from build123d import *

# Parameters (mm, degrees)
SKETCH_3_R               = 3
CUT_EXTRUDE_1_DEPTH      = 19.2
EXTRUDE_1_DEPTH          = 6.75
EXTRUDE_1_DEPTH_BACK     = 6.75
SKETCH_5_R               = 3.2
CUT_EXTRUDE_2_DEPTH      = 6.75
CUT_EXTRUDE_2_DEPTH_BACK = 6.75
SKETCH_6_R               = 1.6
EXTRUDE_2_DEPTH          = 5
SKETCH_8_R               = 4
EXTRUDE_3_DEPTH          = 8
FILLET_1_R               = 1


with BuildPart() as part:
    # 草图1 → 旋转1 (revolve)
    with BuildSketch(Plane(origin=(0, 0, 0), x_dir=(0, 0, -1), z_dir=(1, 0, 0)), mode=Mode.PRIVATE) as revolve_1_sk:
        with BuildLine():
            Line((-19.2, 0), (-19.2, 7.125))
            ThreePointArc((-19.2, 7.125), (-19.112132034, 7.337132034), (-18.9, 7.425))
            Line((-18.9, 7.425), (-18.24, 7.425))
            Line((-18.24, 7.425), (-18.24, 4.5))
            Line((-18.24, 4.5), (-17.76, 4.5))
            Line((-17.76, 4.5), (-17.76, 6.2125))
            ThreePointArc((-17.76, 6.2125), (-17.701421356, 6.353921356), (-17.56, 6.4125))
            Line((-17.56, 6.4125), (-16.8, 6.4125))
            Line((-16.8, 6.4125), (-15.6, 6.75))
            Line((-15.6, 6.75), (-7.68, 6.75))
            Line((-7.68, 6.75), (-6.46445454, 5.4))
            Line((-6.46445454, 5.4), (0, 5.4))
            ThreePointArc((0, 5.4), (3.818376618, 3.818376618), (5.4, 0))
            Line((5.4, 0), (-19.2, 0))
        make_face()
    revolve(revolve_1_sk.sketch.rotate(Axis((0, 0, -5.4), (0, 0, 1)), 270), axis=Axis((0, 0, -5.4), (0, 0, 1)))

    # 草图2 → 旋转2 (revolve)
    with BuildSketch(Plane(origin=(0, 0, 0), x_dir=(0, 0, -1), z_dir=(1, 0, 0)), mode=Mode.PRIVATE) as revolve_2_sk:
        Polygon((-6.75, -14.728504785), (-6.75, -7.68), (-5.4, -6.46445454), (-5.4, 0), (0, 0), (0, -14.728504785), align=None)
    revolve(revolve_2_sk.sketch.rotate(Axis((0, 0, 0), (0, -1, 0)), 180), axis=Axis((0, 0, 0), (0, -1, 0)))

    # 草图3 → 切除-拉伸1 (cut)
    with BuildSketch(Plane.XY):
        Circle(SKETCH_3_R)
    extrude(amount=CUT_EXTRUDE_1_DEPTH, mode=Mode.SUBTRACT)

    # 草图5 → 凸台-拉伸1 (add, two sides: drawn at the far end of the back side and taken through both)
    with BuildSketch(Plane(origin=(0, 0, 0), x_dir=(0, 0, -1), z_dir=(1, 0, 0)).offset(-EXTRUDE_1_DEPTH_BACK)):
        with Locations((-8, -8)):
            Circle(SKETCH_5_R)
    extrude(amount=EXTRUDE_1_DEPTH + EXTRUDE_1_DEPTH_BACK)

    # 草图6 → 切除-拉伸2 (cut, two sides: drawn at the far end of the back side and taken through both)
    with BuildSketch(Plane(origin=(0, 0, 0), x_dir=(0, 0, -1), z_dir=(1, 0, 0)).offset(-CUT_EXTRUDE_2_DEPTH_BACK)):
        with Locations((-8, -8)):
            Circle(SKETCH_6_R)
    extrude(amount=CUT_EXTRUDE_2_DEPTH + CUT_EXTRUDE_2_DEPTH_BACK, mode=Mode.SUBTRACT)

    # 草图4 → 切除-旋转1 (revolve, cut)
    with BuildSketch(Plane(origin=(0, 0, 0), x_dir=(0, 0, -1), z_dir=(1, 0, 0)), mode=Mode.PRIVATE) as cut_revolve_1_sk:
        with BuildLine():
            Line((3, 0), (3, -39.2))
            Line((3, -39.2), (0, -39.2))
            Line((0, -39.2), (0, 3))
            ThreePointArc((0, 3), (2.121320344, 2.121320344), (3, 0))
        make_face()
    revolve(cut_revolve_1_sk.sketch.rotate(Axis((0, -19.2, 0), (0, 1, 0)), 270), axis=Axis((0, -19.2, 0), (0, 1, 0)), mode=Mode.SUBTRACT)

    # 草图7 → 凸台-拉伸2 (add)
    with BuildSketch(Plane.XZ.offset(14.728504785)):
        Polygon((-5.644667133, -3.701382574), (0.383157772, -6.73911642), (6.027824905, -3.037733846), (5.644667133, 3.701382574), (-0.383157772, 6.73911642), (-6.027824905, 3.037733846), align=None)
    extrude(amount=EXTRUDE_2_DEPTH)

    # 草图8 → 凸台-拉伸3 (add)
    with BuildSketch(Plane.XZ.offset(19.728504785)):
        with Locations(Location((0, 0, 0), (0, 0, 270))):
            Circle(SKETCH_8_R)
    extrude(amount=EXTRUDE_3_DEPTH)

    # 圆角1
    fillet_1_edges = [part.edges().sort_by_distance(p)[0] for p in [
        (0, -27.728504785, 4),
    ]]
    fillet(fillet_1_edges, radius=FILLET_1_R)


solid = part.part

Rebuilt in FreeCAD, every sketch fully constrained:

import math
import FreeCAD as App
import Part
import Sketcher

V = App.Vector
Q = App.Units.Quantity


def edges_at(feature, points):
    """Names of the edges that pass closest to the given points."""
    edges = feature.Shape.Edges
    near = lambda p: min(range(len(edges)), key=lambda i: edges[i].distToShape(Part.Vertex(*p))[0])
    return sorted({f"Edge{near(p) + 1}" for p in points})

doc = App.newDocument("Part")
body = doc.addObject("PartDesign::Body", "Body")

# Sketch on YZ plane
sketch1 = doc.addObject("Sketcher::SketchObject", "Sketch")
body.addObject(sketch1)
sketch1.AttachmentSupport = (doc.YZ_Plane, [""])
sketch1.MapMode = "FlatFace"
sketch1.addGeometry([
    Part.LineSegment(V(7.12, 19.2, 0), V(0, 19.2, 0)),  # 0
    Part.LineSegment(V(0, 19.2, 0), V(0, -5.4, 0)),  # 1
    Part.ArcOfCircle(Part.Circle(V(0, 0, 0), V(0, 0, 1), 5.4), math.radians(-90), math.radians(0)),  # 2
    Part.LineSegment(V(5.4, 0, 0), V(5.4, 6.46, 0)),  # 3
    Part.LineSegment(V(5.4, 6.46, 0), V(6.75, 7.68, 0)),  # 4
    Part.LineSegment(V(6.75, 7.68, 0), V(6.75, 15.6, 0)),  # 5
    Part.LineSegment(V(6.75, 15.6, 0), V(6.41, 16.8, 0)),  # 6
    Part.LineSegment(V(6.41, 16.8, 0), V(6.41, 17.56, 0)),  # 7
    Part.ArcOfCircle(Part.Circle(V(6.21, 17.56, 0), V(0, 0, 1), 0.2), math.radians(0), math.radians(90)),  # 8
    Part.LineSegment(V(6.21, 17.76, 0), V(4.5, 17.76, 0)),  # 9
    Part.LineSegment(V(4.5, 17.76, 0), V(4.5, 18.24, 0)),  # 10
    Part.LineSegment(V(4.5, 18.24, 0), V(7.42, 18.24, 0)),  # 11
    Part.LineSegment(V(7.42, 18.24, 0), V(7.42, 18.9, 0)),  # 12
    Part.ArcOfCircle(Part.Circle(V(7.12, 18.9, 0), V(0, 0, 1), 0.3), math.radians(0), math.radians(90)),  # 13
], False)
sketch1.addConstraint([
    Sketcher.Constraint("Coincident", 0, 2, 1, 1),
    Sketcher.Constraint("Coincident", 1, 2, 2, 1),
    Sketcher.Constraint("Tangent", 2, 2, 3, 1),
    Sketcher.Constraint("Coincident", 3, 2, 4, 1),
    Sketcher.Constraint("Coincident", 4, 2, 5, 1),
    Sketcher.Constraint("Coincident", 5, 2, 6, 1),
    Sketcher.Constraint("Coincident", 6, 2, 7, 1),
    Sketcher.Constraint("Tangent", 7, 2, 8, 1),
    Sketcher.Constraint("Tangent", 8, 2, 9, 1),
    Sketcher.Constraint("Coincident", 9, 2, 10, 1),
    Sketcher.Constraint("Coincident", 10, 2, 11, 1),
    Sketcher.Constraint("Coincident", 11, 2, 12, 1),
    Sketcher.Constraint("Tangent", 12, 2, 13, 1),
    Sketcher.Constraint("Tangent", 13, 2, 0, 1),
    Sketcher.Constraint("Horizontal", 0),
    Sketcher.Constraint("Vertical", 1),
    Sketcher.Constraint("Vertical", 3),
    Sketcher.Constraint("Vertical", 5),
    Sketcher.Constraint("Vertical", 7),
    Sketcher.Constraint("Horizontal", 9),
    Sketcher.Constraint("Vertical", 10),
    Sketcher.Constraint("Horizontal", 11),
    Sketcher.Constraint("Vertical", 12),
    Sketcher.Constraint("Coincident", 2, 3, -1, 1),
    Sketcher.Constraint("PointOnObject", 0, 2, -2),
    Sketcher.Constraint("Radius", 2, 5.4),
    Sketcher.Constraint("Radius", 8, 0.2),
    Sketcher.Constraint("Radius", 13, 0.3),
    Sketcher.Constraint("Angle", 4, Q("42 deg")),
    Sketcher.Constraint("DistanceY", 1, 2, 1, 1, 24.6),
    Sketcher.Constraint("DistanceY", 5, 1, 5, 2, 7.92),
    Sketcher.Constraint("DistanceY", 7, 1, 7, 2, 0.76),
    Sketcher.Constraint("DistanceY", 10, 1, 10, 2, 0.48),
    Sketcher.Constraint("DistanceY", 12, 1, 12, 2, 0.66),
    Sketcher.Constraint("DistanceY", -1, 1, 5, 2, 15.6),
    Sketcher.Constraint("DistanceX", -1, 1, 9, 2, 4.5),
    Sketcher.Constraint("DistanceX", 0, 2, 0, 1, 7.125),
    Sketcher.Constraint("DistanceX", -1, 1, 4, 2, 6.75),
    Sketcher.Constraint("DistanceX", 9, 2, 9, 1, 1.7125),
])
revolution = doc.addObject("PartDesign::Revolution", "Revolution")
body.addObject(revolution)
revolution.Profile = sketch1
revolution.ReferenceAxis = (sketch1, ["V_Axis"])
revolution.Angle = 360

# Sketch on YZ plane
sketch2 = doc.addObject("Sketcher::SketchObject", "Sketch001")
body.addObject(sketch2)
sketch2.AttachmentSupport = (doc.YZ_Plane, [""])
sketch2.MapMode = "FlatFace"
sketch2.addGeometry([
    Part.LineSegment(V(-7.7, 6.8, 0), V(-14.7, 6.8, 0)),  # 0
    Part.LineSegment(V(-14.7, 6.8, 0), V(-14.7, 0, 0)),  # 1
    Part.LineSegment(V(-14.7, 0, 0), V(0, 0, 0)),  # 2
    Part.LineSegment(V(0, 0, 0), V(0, 5.4, 0)),  # 3
    Part.LineSegment(V(0, 5.4, 0), V(-6.5, 5.4, 0)),  # 4
    Part.LineSegment(V(-6.5, 5.4, 0), V(-7.7, 6.8, 0)),  # 5
], False)
sketch2.addConstraint([
    Sketcher.Constraint("Coincident", 0, 2, 1, 1),
    Sketcher.Constraint("Coincident", 1, 2, 2, 1),
    Sketcher.Constraint("Coincident", 2, 2, 3, 1),
    Sketcher.Constraint("Coincident", 3, 2, 4, 1),
    Sketcher.Constraint("Coincident", 4, 2, 5, 1),
    Sketcher.Constraint("Coincident", 5, 2, 0, 1),
    Sketcher.Constraint("Horizontal", 0),
    Sketcher.Constraint("Vertical", 1),
    Sketcher.Constraint("Horizontal", 2),
    Sketcher.Constraint("Vertical", 3),
    Sketcher.Constraint("Horizontal", 4),
    Sketcher.Constraint("Coincident", 2, 2, -1, 1),
    Sketcher.Constraint("Angle", 5, Q("132 deg")),
    Sketcher.Constraint("DistanceY", 3, 1, 3, 2, 5.4),
    Sketcher.Constraint("DistanceY", 1, 2, 1, 1, 6.75),
    Sketcher.Constraint("DistanceX", 5, 2, -1, 1, 7.68),
    Sketcher.Constraint("DistanceX", 0, 2, 0, 1, 7.048505),
])
revolution2 = doc.addObject("PartDesign::Revolution", "Revolution001")
body.addObject(revolution2)
revolution2.Profile = sketch2
revolution2.ReferenceAxis = (sketch2, ["H_Axis"])
revolution2.Angle = 360

# Sketch on XY plane
sketch3 = doc.addObject("Sketcher::SketchObject", "Sketch002")
body.addObject(sketch3)
sketch3.AttachmentSupport = (doc.XY_Plane, [""])
sketch3.MapMode = "FlatFace"
sketch3.addGeometry(Part.Circle(V(0, 0, 0), V(0, 0, 1), 3), False)
sketch3.addConstraint([
    Sketcher.Constraint("Coincident", 0, 3, -1, 1),
    Sketcher.Constraint("Diameter", 0, 6.0),
])
pocket1 = doc.addObject("PartDesign::Pocket", "Pocket")
body.addObject(pocket1)
pocket1.Profile = sketch3
pocket1.Length = 19.2
pocket1.Reversed = True

# Sketch on YZ plane
sketch4 = doc.addObject("Sketcher::SketchObject", "Sketch003")
body.addObject(sketch4)
sketch4.AttachmentSupport = (doc.YZ_Plane, [""])
sketch4.MapMode = "FlatFace"
sketch4.addGeometry(Part.Circle(V(-8, 8, 0), V(0, 0, 1), 3.2), False)
sketch4.addConstraint([
    Sketcher.Constraint("Diameter", 0, 6.4),
    Sketcher.Constraint("DistanceX", 0, 3, -1, 1, 8.0),
    Sketcher.Constraint("DistanceY", -1, 1, 0, 3, 8.0),
])
pad1 = doc.addObject("PartDesign::Pad", "Pad")
body.addObject(pad1)
pad1.Profile = sketch4
pad1.Type = "TwoLengths"
pad1.Length = 6.75
pad1.Length2 = 6.75

# Sketch on YZ plane
sketch5 = doc.addObject("Sketcher::SketchObject", "Sketch004")
body.addObject(sketch5)
sketch5.AttachmentSupport = (doc.YZ_Plane, [""])
sketch5.MapMode = "FlatFace"
sketch5.addGeometry(Part.Circle(V(-8, 8, 0), V(0, 0, 1), 1.6), False)
sketch5.addConstraint([
    Sketcher.Constraint("Diameter", 0, 3.2),
    Sketcher.Constraint("DistanceX", 0, 3, -1, 1, 8.0),
    Sketcher.Constraint("DistanceY", -1, 1, 0, 3, 8.0),
])
pocket2 = doc.addObject("PartDesign::Pocket", "Pocket001")
body.addObject(pocket2)
pocket2.Profile = sketch5
pocket2.Type = "ThroughAll"
pocket2.Midplane = True

# Sketch on YZ plane
sketch6 = doc.addObject("Sketcher::SketchObject", "Sketch005")
body.addObject(sketch6)
sketch6.AttachmentSupport = (doc.YZ_Plane, [""])
sketch6.MapMode = "FlatFace"
sketch6.addGeometry([
    Part.LineSegment(V(-39.2, -3, 0), V(0, -3, 0)),
    Part.ArcOfCircle(Part.Circle(V(0, 0, 0), V(0, 0, 1), 3), math.radians(-90), math.radians(0)),
    Part.LineSegment(V(3, 0, 0), V(-39.2, 0, 0)),
    Part.LineSegment(V(-39.2, 0, 0), V(-39.2, -3, 0)),
], False)
sketch6.addConstraint([
    Sketcher.Constraint("Tangent", 0, 2, 1, 1),
    Sketcher.Constraint("Coincident", 1, 2, 2, 1),
    Sketcher.Constraint("Coincident", 2, 2, 3, 1),
    Sketcher.Constraint("Coincident", 3, 2, 0, 1),
    Sketcher.Constraint("Horizontal", 0),
    Sketcher.Constraint("Horizontal", 2),
    Sketcher.Constraint("Vertical", 3),
    Sketcher.Constraint("Coincident", 1, 3, -1, 1),
    Sketcher.Constraint("PointOnObject", 1, 2, -1),
    Sketcher.Constraint("Radius", 1, 3.0),
    Sketcher.Constraint("DistanceX", 0, 1, 0, 2, 39.2),
])
groove = doc.addObject("PartDesign::Groove", "Groove")
body.addObject(groove)
groove.Profile = sketch6
groove.ReferenceAxis = (sketch6, ["H_Axis"])
groove.Angle = 360

# Sketch on XZ plane
sketch7 = doc.addObject("Sketcher::SketchObject", "Sketch006")
body.addObject(sketch7)
sketch7.AttachmentSupport = (doc.XZ_Plane, [""])
sketch7.MapMode = "FlatFace"
sketch7.AttachmentOffset = App.Placement(V(0, 0, 14.728505), App.Rotation())
sketch7.addGeometry([
    Part.LineSegment(V(-6, -4, 0), V(0, -7, 0)),  # 0
    Part.LineSegment(V(0, -7, 0), V(6, -3, 0)),  # 1
    Part.LineSegment(V(6, -3, 0), V(6, 4, 0)),  # 2
    Part.LineSegment(V(6, 4, 0), V(0, 7, 0)),  # 3
    Part.LineSegment(V(0, 7, 0), V(-6, 3, 0)),  # 4
    Part.LineSegment(V(-6, 3, 0), V(-6, -4, 0)),  # 5
], False)
sketch7.addConstraint([
    Sketcher.Constraint("Coincident", 0, 2, 1, 1),
    Sketcher.Constraint("Coincident", 1, 2, 2, 1),
    Sketcher.Constraint("Coincident", 2, 2, 3, 1),
    Sketcher.Constraint("Coincident", 3, 2, 4, 1),
    Sketcher.Constraint("Coincident", 4, 2, 5, 1),
    Sketcher.Constraint("Coincident", 5, 2, 0, 1),
    Sketcher.Constraint("Symmetric", 0, 2, 3, 2, -1, 1),
    Sketcher.Constraint("Symmetric", 1, 2, 4, 2, -1, 1),
    Sketcher.Constraint("Symmetric", 2, 2, 5, 2, -1, 1),
    Sketcher.Constraint("Equal", 0, 1),
    Sketcher.Constraint("Equal", 1, 2),
    Sketcher.Constraint("Distance", 0, 6.75),
    Sketcher.Constraint("DistanceY", 0, 2, 2, 2, 10.440499),
    Sketcher.Constraint("DistanceX", 0, 2, 2, 2, 5.261509),
    Sketcher.Constraint("DistanceY", 1, 2, 3, 2, 9.77685),
])
pad2 = doc.addObject("PartDesign::Pad", "Pad001")
body.addObject(pad2)
pad2.Profile = sketch7
pad2.Length = 5

# Sketch on XZ plane
sketch8 = doc.addObject("Sketcher::SketchObject", "Sketch007")
body.addObject(sketch8)
sketch8.AttachmentSupport = (doc.XZ_Plane, [""])
sketch8.MapMode = "FlatFace"
sketch8.AttachmentOffset = App.Placement(V(0, 0, 19.728505), App.Rotation())
sketch8.addGeometry(Part.Circle(V(0, 0, 0), V(0, 0, 1), 4), False)
sketch8.addConstraint([
    Sketcher.Constraint("Coincident", 0, 3, -1, 1),
    Sketcher.Constraint("Diameter", 0, 8.0),
])
pad3 = doc.addObject("PartDesign::Pad", "Pad002")
body.addObject(pad3)
pad3.Profile = sketch8
pad3.Length = 8
doc.recompute()

fillet = doc.addObject("PartDesign::Fillet", "Fillet")
body.addObject(fillet)
fillet.Base = (pad3, edges_at(pad3, [(0, -27.729, 4)]))
fillet.Radius = 1

doc.recompute()
